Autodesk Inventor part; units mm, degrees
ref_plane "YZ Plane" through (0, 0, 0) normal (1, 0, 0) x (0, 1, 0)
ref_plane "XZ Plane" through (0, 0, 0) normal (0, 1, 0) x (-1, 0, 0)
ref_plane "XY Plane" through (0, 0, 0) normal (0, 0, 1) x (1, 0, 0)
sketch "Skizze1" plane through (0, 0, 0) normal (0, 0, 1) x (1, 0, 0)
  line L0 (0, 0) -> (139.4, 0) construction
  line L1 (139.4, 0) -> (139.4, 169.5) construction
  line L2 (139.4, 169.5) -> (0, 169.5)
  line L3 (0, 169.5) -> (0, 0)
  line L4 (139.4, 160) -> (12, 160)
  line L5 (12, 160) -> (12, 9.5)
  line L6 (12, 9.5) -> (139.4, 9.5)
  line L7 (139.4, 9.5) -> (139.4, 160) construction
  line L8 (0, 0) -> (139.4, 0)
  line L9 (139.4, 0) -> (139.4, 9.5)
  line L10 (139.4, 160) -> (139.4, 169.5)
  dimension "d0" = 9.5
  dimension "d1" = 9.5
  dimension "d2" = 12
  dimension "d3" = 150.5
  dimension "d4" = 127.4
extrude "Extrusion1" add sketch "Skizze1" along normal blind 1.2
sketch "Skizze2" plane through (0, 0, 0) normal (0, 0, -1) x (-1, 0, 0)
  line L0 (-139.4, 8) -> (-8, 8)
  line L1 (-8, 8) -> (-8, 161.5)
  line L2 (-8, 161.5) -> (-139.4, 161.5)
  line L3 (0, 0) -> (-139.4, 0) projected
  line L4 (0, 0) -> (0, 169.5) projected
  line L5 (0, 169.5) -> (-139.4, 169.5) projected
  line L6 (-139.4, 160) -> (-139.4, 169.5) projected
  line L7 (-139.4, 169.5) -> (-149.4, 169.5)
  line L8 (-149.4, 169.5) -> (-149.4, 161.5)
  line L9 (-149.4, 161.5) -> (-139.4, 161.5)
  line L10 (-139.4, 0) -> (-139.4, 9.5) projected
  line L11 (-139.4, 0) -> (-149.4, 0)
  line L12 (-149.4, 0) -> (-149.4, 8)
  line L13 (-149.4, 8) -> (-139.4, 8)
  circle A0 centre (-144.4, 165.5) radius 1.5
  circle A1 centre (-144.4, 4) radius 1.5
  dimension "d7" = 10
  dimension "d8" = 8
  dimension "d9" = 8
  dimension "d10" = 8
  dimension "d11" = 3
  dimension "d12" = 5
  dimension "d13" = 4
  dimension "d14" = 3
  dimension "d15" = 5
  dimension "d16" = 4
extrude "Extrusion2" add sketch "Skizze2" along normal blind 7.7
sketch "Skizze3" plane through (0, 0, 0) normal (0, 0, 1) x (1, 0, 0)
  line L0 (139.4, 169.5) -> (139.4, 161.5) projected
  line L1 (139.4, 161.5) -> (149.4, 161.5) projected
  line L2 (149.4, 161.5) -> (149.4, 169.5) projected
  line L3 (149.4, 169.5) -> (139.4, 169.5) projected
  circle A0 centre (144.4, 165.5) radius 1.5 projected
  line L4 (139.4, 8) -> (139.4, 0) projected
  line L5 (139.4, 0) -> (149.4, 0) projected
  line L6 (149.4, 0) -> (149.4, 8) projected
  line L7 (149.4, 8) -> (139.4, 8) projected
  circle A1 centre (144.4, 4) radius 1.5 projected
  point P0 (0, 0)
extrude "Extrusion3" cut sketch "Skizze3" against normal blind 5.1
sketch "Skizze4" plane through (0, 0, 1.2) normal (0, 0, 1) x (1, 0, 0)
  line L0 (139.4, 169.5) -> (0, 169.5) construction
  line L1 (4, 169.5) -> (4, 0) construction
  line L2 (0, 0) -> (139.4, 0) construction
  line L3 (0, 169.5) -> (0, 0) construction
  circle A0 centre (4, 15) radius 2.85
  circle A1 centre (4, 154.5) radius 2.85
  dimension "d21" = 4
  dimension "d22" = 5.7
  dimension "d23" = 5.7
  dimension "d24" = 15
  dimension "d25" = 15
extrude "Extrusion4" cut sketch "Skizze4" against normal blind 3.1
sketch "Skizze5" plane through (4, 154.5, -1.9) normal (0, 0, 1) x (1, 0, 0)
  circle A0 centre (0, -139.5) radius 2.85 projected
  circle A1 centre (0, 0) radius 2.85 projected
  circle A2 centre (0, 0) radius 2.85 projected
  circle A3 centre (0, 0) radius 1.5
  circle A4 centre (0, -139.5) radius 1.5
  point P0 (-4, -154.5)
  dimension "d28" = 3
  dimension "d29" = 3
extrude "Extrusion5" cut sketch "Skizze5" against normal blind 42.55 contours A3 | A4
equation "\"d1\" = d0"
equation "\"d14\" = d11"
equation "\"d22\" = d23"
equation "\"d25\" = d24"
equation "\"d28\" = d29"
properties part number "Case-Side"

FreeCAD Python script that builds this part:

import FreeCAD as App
import Part
import Sketcher
from FreeCAD import Vector


def add_polygon(sketch, points):
    """Adds a closed chain of lines whose ends are joined by coincident constraints."""
    first, n = sketch.GeometryCount, len(points)
    for a, b in zip(points, points[1:] + points[:1]):
        sketch.addGeometry(Part.LineSegment(App.Vector(*a, 0), App.Vector(*b, 0)), False)
    for i in range(n):
        sketch.addConstraint(Sketcher.Constraint("Coincident", first + i, 2, first + (i + 1) % n, 1))

doc = App.newDocument("Part")
params = doc.addObject("Spreadsheet::Sheet", "Params")
for row, (alias, value) in enumerate([
    ("sketch1_width", "127.4 mm"),
    ("sketch1_height", "9.5 mm"),
    ("sketch1_height2", "150.5 mm"),
    ("pad1_length", "1.2 mm"),
    ("sketch2_diameter", "3 mm"),
    ("sketch2_height", "8 mm"),
    ("sketch2_width", "141.4 mm"),
    ("sketch2_height2", "169.5 mm"),
    ("pad2_length", "7.7 mm"),
    ("sketch3_diameter", "3 mm"),
    ("sketch3_width", "10 mm"),
    ("sketch3_height", "8 mm"),
    ("pocket1_length", "5.1 mm"),
    ("sketch4_diameter", "5.7 mm"),
    ("pocket2_length", "3.1 mm"),
    ("sketch5_diameter", "3 mm"),
    ("pocket3_length", "42.55 mm"),
], start=1):
    params.set(f"A{row}", alias)
    params.set(f"B{row}", "=" + value)
    params.setAlias(f"B{row}", alias)

body = doc.addObject("PartDesign::Body", "Body")

# Sketch on XY plane
sketch1 = body.newObject("Sketcher::SketchObject", "Sketch")
sketch1.AttachmentSupport = (doc.getObject("XY_Plane"), [""])
sketch1.MapMode = "FlatFace"
add_polygon(sketch1, [(139, 160), (139, 170), (0, 170), (0, 0), (139, 0), (139, 10), (12, 10), (12, 160)])  # lines 0-7
sketch1.addConstraint([
    Sketcher.Constraint("Vertical", 0),
    Sketcher.Constraint("Horizontal", 1),
    Sketcher.Constraint("Vertical", 2),
    Sketcher.Constraint("Horizontal", 3),
    Sketcher.Constraint("Vertical", 4),
    Sketcher.Constraint("Horizontal", 5),
    Sketcher.Constraint("Vertical", 6),
    Sketcher.Constraint("Horizontal", 7),
    Sketcher.Constraint("Coincident", 2, 2, -1, 1),
    Sketcher.Constraint("Vertical", 0, 2, 3, 2),
    Sketcher.Constraint("Equal", 0, 4),
    Sketcher.Constraint("DistanceX", 5, 2, 5, 1, 127.4),
    Sketcher.Constraint("DistanceY", 0, 1, 0, 2, 9.5),
    Sketcher.Constraint("DistanceY", 6, 1, 6, 2, 150.5),
    Sketcher.Constraint("DistanceX", -1, 1, 5, 2, 12.0),
])
sketch1.setExpression("Constraints[19]", "Params.sketch1_width")
sketch1.setExpression("Constraints[20]", "Params.sketch1_height")
sketch1.setExpression("Constraints[21]", "Params.sketch1_height2")
pad1 = body.newObject("PartDesign::Pad", "Pad")
pad1.Profile = sketch1
pad1.setExpression("Length", "Params.pad1_length")

# Sketch on XY plane
sketch2 = body.newObject("Sketcher::SketchObject", "Sketch001")
sketch2.AttachmentSupport = (doc.getObject("XY_Plane"), [""])
sketch2.MapMode = "FlatFace"
add_polygon(sketch2, [(8, 8), (149.4, 8), (149.4, 0), (0, 0), (0, 169.5), (149.4, 169.5), (149.4, 161.5), (8, 161.5)])  # lines 0-7
sketch2.addGeometry(Part.Circle(Vector(144.4, 165.5, 0), Vector(0, 0, 1), 1.5), False)  # 8
sketch2.addGeometry(Part.Circle(Vector(144.4, 4, 0), Vector(0, 0, 1), 1.5), False)  # 9
sketch2.addConstraint([
    Sketcher.Constraint("Horizontal", 0),
    Sketcher.Constraint("Vertical", 1),
    Sketcher.Constraint("Horizontal", 2),
    Sketcher.Constraint("Vertical", 3),
    Sketcher.Constraint("Horizontal", 4),
    Sketcher.Constraint("Vertical", 5),
    Sketcher.Constraint("Horizontal", 6),
    Sketcher.Constraint("Vertical", 7),
    Sketcher.Constraint("Coincident", 2, 2, -1, 1),
    Sketcher.Constraint("Equal", 8, 9),
    Sketcher.Constraint("Vertical", 8, 3, 9, 3),
    Sketcher.Constraint("Vertical", 1, 2, 4, 2),
    Sketcher.Constraint("Equal", 1, 5),
    Sketcher.Constraint("Diameter", 8, 3.0),
    Sketcher.Constraint("DistanceY", 1, 2, 1, 1, 8.0),
    Sketcher.Constraint("DistanceY", -1, 1, 9, 3, 4.0),
    Sketcher.Constraint("DistanceX", -1, 1, 6, 2, 8.0),
    Sketcher.Constraint("DistanceX", 9, 3, 0, 2, 5.0),
    Sketcher.Constraint("DistanceY", 8, 3, 3, 2, 4.0),
    Sketcher.Constraint("DistanceX", 0, 1, 0, 2, 141.4),
    Sketcher.Constraint("DistanceY", 3, 1, 3, 2, 169.5),
])
sketch2.setExpression("Constraints[21]", "Params.sketch2_diameter")
sketch2.setExpression("Constraints[22]", "Params.sketch2_height")
sketch2.setExpression("Constraints[27]", "Params.sketch2_width")
sketch2.setExpression("Constraints[28]", "Params.sketch2_height2")
pad2 = body.newObject("PartDesign::Pad", "Pad001")
pad2.Profile = sketch2
pad2.setExpression("Length", "Params.pad2_length")
pad2.Reversed = True

# Sketch on XY plane
sketch3 = body.newObject("Sketcher::SketchObject", "Sketch002")
sketch3.AttachmentSupport = (doc.getObject("XY_Plane"), [""])
sketch3.MapMode = "FlatFace"
add_polygon(sketch3, [(149.4, 169.5), (139.4, 169.5), (139.4, 161.5), (149.4, 161.5)])  # lines 0-3
sketch3.addGeometry(Part.Circle(Vector(144.4, 165.5, 0), Vector(0, 0, 1), 1.5), False)  # 4
add_polygon(sketch3, [(149.4, 8), (139.4, 8), (139.4, 0), (149.4, 0)])  # lines 5-8
sketch3.addGeometry(Part.Circle(Vector(144.4, 4, 0), Vector(0, 0, 1), 1.5), False)  # 9
sketch3.addConstraint([
    Sketcher.Constraint("Horizontal", 0),
    Sketcher.Constraint("Vertical", 1),
    Sketcher.Constraint("Horizontal", 2),
    Sketcher.Constraint("Vertical", 3),
    Sketcher.Constraint("Horizontal", 5),
    Sketcher.Constraint("Vertical", 6),
    Sketcher.Constraint("Horizontal", 7),
    Sketcher.Constraint("Vertical", 8),
    Sketcher.Constraint("Equal", 4, 9),
    Sketcher.Constraint("PointOnObject", 6, 2, -1),
    Sketcher.Constraint("Vertical", 4, 3, 9, 3),
    Sketcher.Constraint("Vertical", 1, 2, 5, 2),
    Sketcher.Constraint("Vertical", 3, 2, 7, 2),
    Sketcher.Constraint("Equal", 3, 6),
    Sketcher.Constraint("Diameter", 4, 3.0),
    Sketcher.Constraint("DistanceX", 0, 2, 0, 1, 10.0),
    Sketcher.Constraint("DistanceY", 1, 2, 1, 1, 8.0),
    Sketcher.Constraint("DistanceY", -1, 1, 9, 3, 4.0),
    Sketcher.Constraint("DistanceX", 0, 2, 4, 3, 5.0),
    Sketcher.Constraint("DistanceY", 4, 3, 0, 2, 4.0),
    Sketcher.Constraint("DistanceX", -1, 1, 4, 3, 144.4),
    Sketcher.Constraint("DistanceY", -1, 1, 4, 3, 165.5),
])
sketch3.setExpression("Constraints[22]", "Params.sketch3_diameter")
sketch3.setExpression("Constraints[23]", "Params.sketch3_width")
sketch3.setExpression("Constraints[24]", "Params.sketch3_height")
pocket1 = body.newObject("PartDesign::Pocket", "Pocket")
pocket1.Profile = sketch3
pocket1.setExpression("Length", "Params.pocket1_length")

# Sketch on XY plane
sketch4 = body.newObject("Sketcher::SketchObject", "Sketch003")
sketch4.AttachmentSupport = (doc.getObject("XY_Plane"), [""])
sketch4.MapMode = "FlatFace"
sketch4.AttachmentOffset = App.Placement(Vector(0, 0, 1.2), App.Rotation())
sketch4.addGeometry([
    Part.Circle(Vector(4, 15, 0), Vector(0, 0, 1), 2.9),
    Part.Circle(Vector(4, 154.5, 0), Vector(0, 0, 1), 2.9),
], False)
sketch4.addConstraint([
    Sketcher.Constraint("Equal", 0, 1),
    Sketcher.Constraint("Vertical", 0, 3, 1, 3),
    Sketcher.Constraint("Diameter", 0, 5.7),
    Sketcher.Constraint("DistanceX", -1, 1, 0, 3, 4.0),
    Sketcher.Constraint("DistanceY", -1, 1, 0, 3, 15.0),
    Sketcher.Constraint("DistanceY", -1, 1, 1, 3, 154.5),
])
sketch4.setExpression("Constraints[2]", "Params.sketch4_diameter")
pocket2 = body.newObject("PartDesign::Pocket", "Pocket001")
pocket2.Profile = sketch4
pocket2.setExpression("Length", "Params.pocket2_length")

# Sketch on XY plane
sketch5 = body.newObject("Sketcher::SketchObject", "Sketch004")
sketch5.AttachmentSupport = (doc.getObject("XY_Plane"), [""])
sketch5.MapMode = "FlatFace"
sketch5.AttachmentOffset = App.Placement(Vector(0, 0, -1.9), App.Rotation())
sketch5.addGeometry([
    Part.Circle(Vector(4, 154.5, 0), Vector(0, 0, 1), 1.5),
    Part.Circle(Vector(4, 15, 0), Vector(0, 0, 1), 1.5),
], False)
sketch5.addConstraint([
    Sketcher.Constraint("Equal", 0, 1),
    Sketcher.Constraint("Vertical", 0, 3, 1, 3),
    Sketcher.Constraint("Diameter", 0, 3.0),
    Sketcher.Constraint("DistanceX", -1, 1, 0, 3, 4.0),
    Sketcher.Constraint("DistanceY", -1, 1, 1, 3, 15.0),
    Sketcher.Constraint("DistanceY", -1, 1, 0, 3, 154.5),
])
sketch5.setExpression("Constraints[2]", "Params.sketch5_diameter")
pocket3 = body.newObject("PartDesign::Pocket", "Pocket002")
pocket3.Profile = sketch5
pocket3.setExpression("Length", "Params.pocket3_length")

doc.recompute()
